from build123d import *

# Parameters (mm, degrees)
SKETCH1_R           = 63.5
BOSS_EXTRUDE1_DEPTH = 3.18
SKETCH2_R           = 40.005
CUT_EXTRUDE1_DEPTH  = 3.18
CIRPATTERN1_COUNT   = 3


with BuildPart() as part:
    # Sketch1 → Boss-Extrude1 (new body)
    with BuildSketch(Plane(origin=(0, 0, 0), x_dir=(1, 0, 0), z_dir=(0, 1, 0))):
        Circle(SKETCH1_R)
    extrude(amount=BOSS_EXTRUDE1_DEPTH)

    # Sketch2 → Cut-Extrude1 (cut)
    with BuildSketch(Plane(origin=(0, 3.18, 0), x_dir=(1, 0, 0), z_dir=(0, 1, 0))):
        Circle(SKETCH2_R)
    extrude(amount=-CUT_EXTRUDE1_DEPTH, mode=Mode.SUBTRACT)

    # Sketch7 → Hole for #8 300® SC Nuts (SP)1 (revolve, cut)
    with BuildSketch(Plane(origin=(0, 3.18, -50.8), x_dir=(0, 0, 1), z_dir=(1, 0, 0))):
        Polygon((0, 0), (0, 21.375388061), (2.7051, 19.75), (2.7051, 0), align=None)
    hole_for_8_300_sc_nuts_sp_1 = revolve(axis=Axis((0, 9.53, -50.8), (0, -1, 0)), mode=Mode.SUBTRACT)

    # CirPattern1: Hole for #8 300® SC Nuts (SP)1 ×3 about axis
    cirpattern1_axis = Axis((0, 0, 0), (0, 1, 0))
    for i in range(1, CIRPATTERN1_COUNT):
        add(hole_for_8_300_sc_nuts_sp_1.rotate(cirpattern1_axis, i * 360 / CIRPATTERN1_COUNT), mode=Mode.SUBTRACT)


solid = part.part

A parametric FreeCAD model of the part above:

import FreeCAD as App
import Part
import Sketcher
from FreeCAD import Vector
Q = App.Units.Quantity


def add_polygon(sketch, points):
    """Adds a closed chain of lines whose ends are joined by coincident constraints."""
    first, n = sketch.GeometryCount, len(points)
    for a, b in zip(points, points[1:] + points[:1]):
        sketch.addGeometry(Part.LineSegment(App.Vector(*a, 0), App.Vector(*b, 0)), False)
    for i in range(n):
        sketch.addConstraint(Sketcher.Constraint("Coincident", first + i, 2, first + (i + 1) % n, 1))

doc = App.newDocument("Part")
params = doc.addObject("Spreadsheet::Sheet", "Params")
for row, (alias, value) in enumerate([
    ("sketch1_diameter", "5 in"),
    ("pad1_length", "3.18 mm"),
    ("sketch2_diameter", "3.15 in"),
    ("pocket1_length", "3.18 mm"),
    ("groove_angle", "360 deg"),
], start=1):
    params.set(f"A{row}", alias)
    params.set(f"B{row}", "=" + value)
    params.setAlias(f"B{row}", alias)

body = doc.addObject("PartDesign::Body", "Body")

# Sketch on XZ plane
sketch1 = body.newObject("Sketcher::SketchObject", "Sketch")
sketch1.AttachmentSupport = (doc.getObject("XZ_Plane"), [""])
sketch1.MapMode = "FlatFace"
sketch1.addGeometry(Part.Circle(Vector(0, 0, 0), Vector(0, 0, 1), 64), False)
sketch1.addConstraint(Sketcher.Constraint("Coincident", 0, 3, -1, 1))
sketch1.addConstraint(Sketcher.Constraint("Diameter", 0, Q("5 in")))
sketch1.setExpression("Constraints[1]", "Params.sketch1_diameter")
pad1 = body.newObject("PartDesign::Pad", "Pad")
pad1.Profile = sketch1
pad1.setExpression("Length", "Params.pad1_length")
pad1.Reversed = True

# Sketch on XZ plane
sketch2 = body.newObject("Sketcher::SketchObject", "Sketch001")
sketch2.AttachmentSupport = (doc.getObject("XZ_Plane"), [""])
sketch2.MapMode = "FlatFace"
sketch2.AttachmentOffset = App.Placement(Vector(0, 0, -3.18), App.Rotation())
sketch2.addGeometry(Part.Circle(Vector(0, 0, 0), Vector(0, 0, 1), 40), False)
sketch2.addConstraint(Sketcher.Constraint("Coincident", 0, 3, -1, 1))
sketch2.addConstraint(Sketcher.Constraint("Diameter", 0, Q("3.15 in")))
sketch2.setExpression("Constraints[1]", "Params.sketch2_diameter")
pocket1 = body.newObject("PartDesign::Pocket", "Pocket")
pocket1.Profile = sketch2
pocket1.setExpression("Length", "Params.pocket1_length")
pocket1.Reversed = True

# Sketch on YZ plane
sketch3 = body.newObject("Sketcher::SketchObject", "Sketch002")
sketch3.AttachmentSupport = (doc.getObject("YZ_Plane"), [""])
sketch3.MapMode = "FlatFace"
add_polygon(sketch3, [(-18.2, -50.8), (3.2, -50.8), (3.2, -48.1), (-16.6, -48.1)])  # lines 0-3
sketch3.addGeometry(Part.LineSegment(Vector(3.2, -50.8, 0), Vector(-18.2, -50.8, 0)), True)  # axis
sketch3.addConstraint(Sketcher.Constraint("Horizontal", 0))
sketch3.addConstraint(Sketcher.Constraint("Vertical", 1))
sketch3.addConstraint(Sketcher.Constraint("Horizontal", 2))
sketch3.addConstraint(Sketcher.Constraint("Horizontal", 4))
sketch3.addConstraint(Sketcher.Constraint("Coincident", 4, 1, 0, 2))
sketch3.addConstraint(Sketcher.Constraint("Equal", 0, 4))
sketch3.addConstraint(Sketcher.Constraint("DistanceY", 0, 2, -1, 1, Q("2 in")))
sketch3.addConstraint(Sketcher.Constraint("Angle", 3, Q("-121 deg")))
sketch3.addConstraint(Sketcher.Constraint("DistanceY", 1, 1, 1, 2, Q("0.1065 in")))
sketch3.addConstraint(Sketcher.Constraint("DistanceX", 2, 2, 2, 1, Q("19.75 mm")))
sketch3.addConstraint(Sketcher.Constraint("DistanceX", -1, 1, 0, 2, Q("3.18 mm")))
groove = body.newObject("PartDesign::Groove", "Groove")
groove.Profile = sketch3
groove.ReferenceAxis = (sketch3, ["Axis0"])
groove.setExpression("Angle", "Params.groove_angle")
doc.recompute()

polarpattern = body.newObject("PartDesign::PolarPattern", "PolarPattern")
polarpattern.Originals = [groove]
polarpattern.Axis = (doc.getObject("Y_Axis"), [""])
polarpattern.Angle = 360
polarpattern.Occurrences = 3
body.Tip = polarpattern

doc.recompute()
